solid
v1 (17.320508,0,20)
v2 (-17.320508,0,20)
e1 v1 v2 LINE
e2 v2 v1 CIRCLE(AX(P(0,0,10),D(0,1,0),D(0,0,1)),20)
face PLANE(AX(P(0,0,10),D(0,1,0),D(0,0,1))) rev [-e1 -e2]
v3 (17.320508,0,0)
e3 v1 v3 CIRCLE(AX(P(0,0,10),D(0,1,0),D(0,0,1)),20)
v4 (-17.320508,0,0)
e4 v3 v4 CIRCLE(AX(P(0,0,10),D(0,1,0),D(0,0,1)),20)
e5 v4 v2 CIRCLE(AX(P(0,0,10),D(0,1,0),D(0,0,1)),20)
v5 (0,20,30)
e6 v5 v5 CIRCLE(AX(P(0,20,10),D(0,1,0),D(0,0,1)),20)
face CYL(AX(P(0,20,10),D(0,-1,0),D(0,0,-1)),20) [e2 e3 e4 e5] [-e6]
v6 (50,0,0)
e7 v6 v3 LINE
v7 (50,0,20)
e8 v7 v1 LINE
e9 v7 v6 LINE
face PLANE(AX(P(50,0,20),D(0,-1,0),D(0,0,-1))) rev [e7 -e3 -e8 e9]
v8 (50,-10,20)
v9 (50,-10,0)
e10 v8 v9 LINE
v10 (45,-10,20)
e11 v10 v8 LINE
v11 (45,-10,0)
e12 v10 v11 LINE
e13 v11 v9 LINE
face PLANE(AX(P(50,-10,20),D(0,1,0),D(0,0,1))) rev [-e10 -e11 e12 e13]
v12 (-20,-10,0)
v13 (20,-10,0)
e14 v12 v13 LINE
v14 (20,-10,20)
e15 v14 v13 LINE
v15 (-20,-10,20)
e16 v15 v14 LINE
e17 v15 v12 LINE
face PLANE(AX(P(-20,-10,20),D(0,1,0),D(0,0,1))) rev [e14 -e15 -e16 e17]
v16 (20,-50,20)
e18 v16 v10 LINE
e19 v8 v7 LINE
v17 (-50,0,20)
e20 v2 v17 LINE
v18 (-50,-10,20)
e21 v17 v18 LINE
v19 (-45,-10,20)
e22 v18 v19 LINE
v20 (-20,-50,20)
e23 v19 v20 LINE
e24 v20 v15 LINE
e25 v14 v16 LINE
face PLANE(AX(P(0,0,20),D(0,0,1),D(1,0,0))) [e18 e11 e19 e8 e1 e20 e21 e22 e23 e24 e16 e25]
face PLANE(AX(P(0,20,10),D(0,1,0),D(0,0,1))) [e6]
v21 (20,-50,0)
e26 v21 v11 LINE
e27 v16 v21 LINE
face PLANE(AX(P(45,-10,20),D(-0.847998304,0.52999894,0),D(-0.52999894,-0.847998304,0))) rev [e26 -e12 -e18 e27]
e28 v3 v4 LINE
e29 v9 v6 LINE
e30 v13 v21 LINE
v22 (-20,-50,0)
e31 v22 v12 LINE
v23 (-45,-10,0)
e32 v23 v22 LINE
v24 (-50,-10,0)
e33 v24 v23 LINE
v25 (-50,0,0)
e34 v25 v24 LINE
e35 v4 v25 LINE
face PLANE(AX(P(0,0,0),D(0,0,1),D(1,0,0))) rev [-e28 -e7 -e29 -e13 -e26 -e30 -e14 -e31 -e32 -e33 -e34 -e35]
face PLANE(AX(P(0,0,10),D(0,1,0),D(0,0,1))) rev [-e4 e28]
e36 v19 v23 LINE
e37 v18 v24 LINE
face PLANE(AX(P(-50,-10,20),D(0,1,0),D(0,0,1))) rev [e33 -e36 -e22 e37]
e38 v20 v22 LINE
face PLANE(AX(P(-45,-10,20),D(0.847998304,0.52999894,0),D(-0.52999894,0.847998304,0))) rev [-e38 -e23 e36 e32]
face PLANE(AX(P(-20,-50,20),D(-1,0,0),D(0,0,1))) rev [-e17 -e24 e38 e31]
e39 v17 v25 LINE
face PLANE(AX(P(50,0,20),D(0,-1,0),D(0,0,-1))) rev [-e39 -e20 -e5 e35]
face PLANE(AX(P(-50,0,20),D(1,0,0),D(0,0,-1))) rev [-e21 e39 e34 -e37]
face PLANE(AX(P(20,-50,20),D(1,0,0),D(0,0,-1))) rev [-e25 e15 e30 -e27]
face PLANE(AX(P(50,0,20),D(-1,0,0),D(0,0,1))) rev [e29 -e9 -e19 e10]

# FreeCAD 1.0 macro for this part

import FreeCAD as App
import Part
import Sketcher

V = App.Vector
Q = App.Units.Quantity

doc = App.newDocument("Part")
body = doc.addObject("PartDesign::Body", "Body")

sketch1 = doc.addObject("Sketcher::SketchObject", "Sketch")
body.addObject(sketch1)
sketch1.AttachmentSupport = (doc.XY_Plane, [""])
sketch1.MapMode = "FlatFace"
sketch1.addGeometry(Part.LineSegment(V(50, 0, 0), V(-50, 0, 0)), False)
sketch1.addGeometry(Part.LineSegment(V(-50, 0, 0), V(-50, -10, 0)), False)
sketch1.addGeometry(Part.LineSegment(V(-50, -10, 0), V(-45, -10, 0)), False)
sketch1.addGeometry(Part.LineSegment(V(-45, -10, 0), V(-20, -50, 0)), False)
sketch1.addGeometry(Part.LineSegment(V(-20, -50, 0), V(-20, -10, 0)), False)
sketch1.addGeometry(Part.LineSegment(V(-20, -10, 0), V(20, -10, 0)), False)
sketch1.addGeometry(Part.LineSegment(V(20, -10, 0), V(20, -50, 0)), False)
sketch1.addGeometry(Part.LineSegment(V(20, -50, 0), V(45, -10, 0)), False)
sketch1.addGeometry(Part.LineSegment(V(45, -10, 0), V(50, -10, 0)), False)
sketch1.addGeometry(Part.LineSegment(V(50, -10, 0), V(50, 0, 0)), False)
sketch1.addConstraint(Sketcher.Constraint("Coincident", 0, 2, 1, 1))
sketch1.addConstraint(Sketcher.Constraint("Coincident", 1, 2, 2, 1))
sketch1.addConstraint(Sketcher.Constraint("Coincident", 2, 2, 3, 1))
sketch1.addConstraint(Sketcher.Constraint("Coincident", 3, 2, 4, 1))
sketch1.addConstraint(Sketcher.Constraint("Coincident", 4, 2, 5, 1))
sketch1.addConstraint(Sketcher.Constraint("Coincident", 5, 2, 6, 1))
sketch1.addConstraint(Sketcher.Constraint("Coincident", 6, 2, 7, 1))
sketch1.addConstraint(Sketcher.Constraint("Coincident", 7, 2, 8, 1))
sketch1.addConstraint(Sketcher.Constraint("Coincident", 8, 2, 9, 1))
sketch1.addConstraint(Sketcher.Constraint("Coincident", 9, 2, 0, 1))
sketch1.addConstraint(Sketcher.Constraint("Horizontal", 0))
sketch1.addConstraint(Sketcher.Constraint("Vertical", 1))
sketch1.addConstraint(Sketcher.Constraint("Horizontal", 2))
sketch1.addConstraint(Sketcher.Constraint("Vertical", 4))
sketch1.addConstraint(Sketcher.Constraint("Horizontal", 5))
sketch1.addConstraint(Sketcher.Constraint("Vertical", 6))
sketch1.addConstraint(Sketcher.Constraint("Horizontal", 8))
sketch1.addConstraint(Sketcher.Constraint("Vertical", 9))
sketch1.addConstraint(Sketcher.Constraint("Symmetric", 0, 2, 9, 2, -1, 1))
sketch1.addConstraint(Sketcher.Constraint("Symmetric", 3, 2, 6, 2, -2))
sketch1.addConstraint(Sketcher.Constraint("Symmetric", 2, 2, 7, 2, -2))
sketch1.addConstraint(Sketcher.Constraint("Horizontal", 2, 2, 4, 2))
sketch1.addConstraint(Sketcher.Constraint("Equal", 5, 4))
sketch1.addConstraint(Sketcher.Constraint("DistanceX", 0, 2, 0, 1, Q("100 mm")))
sketch1.addConstraint(Sketcher.Constraint("DistanceX", 2, 1, 2, 2, Q("5 mm")))
sketch1.addConstraint(Sketcher.Constraint("DistanceX", 5, 1, 5, 2, Q("40 mm")))
sketch1.addConstraint(Sketcher.Constraint("DistanceY", 1, 2, 1, 1, Q("10 mm")))
pad1 = doc.addObject("PartDesign::Pad", "Pad")
body.addObject(pad1)
pad1.Profile = sketch1
pad1.Length = 20

sketch2 = doc.addObject("Sketcher::SketchObject", "Sketch001")
body.addObject(sketch2)
sketch2.AttachmentSupport = (doc.XZ_Plane, [""])
sketch2.MapMode = "FlatFace"
sketch2.addGeometry(Part.Circle(V(0, 10, 0), V(0, 0, 1), 20), False)
sketch2.addConstraint(Sketcher.Constraint("PointOnObject", 0, 3, -2))
sketch2.addConstraint(Sketcher.Constraint("Diameter", 0, Q("40 mm")))
sketch2.addConstraint(Sketcher.Constraint("DistanceY", -1, 1, 0, 3, Q("10 mm")))
pad2 = doc.addObject("PartDesign::Pad", "Pad001")
body.addObject(pad2)
pad2.Profile = sketch2
pad2.Length = 20
pad2.Reversed = True

doc.recompute()
